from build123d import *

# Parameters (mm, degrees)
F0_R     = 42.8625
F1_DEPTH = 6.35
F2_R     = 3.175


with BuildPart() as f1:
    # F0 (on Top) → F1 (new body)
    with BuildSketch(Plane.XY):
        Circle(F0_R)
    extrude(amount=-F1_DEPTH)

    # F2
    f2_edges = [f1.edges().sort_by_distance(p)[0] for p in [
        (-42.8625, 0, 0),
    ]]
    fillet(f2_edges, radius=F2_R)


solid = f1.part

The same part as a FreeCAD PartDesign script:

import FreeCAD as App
import Part
import Sketcher
Q = App.Units.Quantity


def edges_at(feature, points):
    """Names of the edges that pass closest to the given points."""
    edges = feature.Shape.Edges
    near = lambda p: min(range(len(edges)), key=lambda i: edges[i].distToShape(Part.Vertex(*p))[0])
    return sorted({f"Edge{near(p) + 1}" for p in points})

doc = App.newDocument("Part")
body = doc.addObject("PartDesign::Body", "Body")

# Sketch on XY plane
sketch1 = doc.addObject("Sketcher::SketchObject", "Sketch")
body.addObject(sketch1)
sketch1.AttachmentSupport = (doc.XY_Plane, [""])
sketch1.MapMode = "FlatFace"
sketch1.addGeometry(Part.Circle(App.Vector(0, 0, 0), App.Vector(0, 0, 1), 43), False)
sketch1.addConstraint([
    Sketcher.Constraint("Coincident", 0, 3, -1, 1),
    Sketcher.Constraint("Diameter", 0, Q("3.375 in")),
])
pad1 = doc.addObject("PartDesign::Pad", "Pad")
body.addObject(pad1)
pad1.Profile = sketch1
pad1.Length = Q("0.25 in")
pad1.Reversed = True
doc.recompute()

fillet = doc.addObject("PartDesign::Fillet", "Fillet")
body.addObject(fillet)
fillet.Base = (pad1, edges_at(pad1, [(-42.862, 0, 0)]))
fillet.Radius = Q("0.125 in")

doc.recompute()
